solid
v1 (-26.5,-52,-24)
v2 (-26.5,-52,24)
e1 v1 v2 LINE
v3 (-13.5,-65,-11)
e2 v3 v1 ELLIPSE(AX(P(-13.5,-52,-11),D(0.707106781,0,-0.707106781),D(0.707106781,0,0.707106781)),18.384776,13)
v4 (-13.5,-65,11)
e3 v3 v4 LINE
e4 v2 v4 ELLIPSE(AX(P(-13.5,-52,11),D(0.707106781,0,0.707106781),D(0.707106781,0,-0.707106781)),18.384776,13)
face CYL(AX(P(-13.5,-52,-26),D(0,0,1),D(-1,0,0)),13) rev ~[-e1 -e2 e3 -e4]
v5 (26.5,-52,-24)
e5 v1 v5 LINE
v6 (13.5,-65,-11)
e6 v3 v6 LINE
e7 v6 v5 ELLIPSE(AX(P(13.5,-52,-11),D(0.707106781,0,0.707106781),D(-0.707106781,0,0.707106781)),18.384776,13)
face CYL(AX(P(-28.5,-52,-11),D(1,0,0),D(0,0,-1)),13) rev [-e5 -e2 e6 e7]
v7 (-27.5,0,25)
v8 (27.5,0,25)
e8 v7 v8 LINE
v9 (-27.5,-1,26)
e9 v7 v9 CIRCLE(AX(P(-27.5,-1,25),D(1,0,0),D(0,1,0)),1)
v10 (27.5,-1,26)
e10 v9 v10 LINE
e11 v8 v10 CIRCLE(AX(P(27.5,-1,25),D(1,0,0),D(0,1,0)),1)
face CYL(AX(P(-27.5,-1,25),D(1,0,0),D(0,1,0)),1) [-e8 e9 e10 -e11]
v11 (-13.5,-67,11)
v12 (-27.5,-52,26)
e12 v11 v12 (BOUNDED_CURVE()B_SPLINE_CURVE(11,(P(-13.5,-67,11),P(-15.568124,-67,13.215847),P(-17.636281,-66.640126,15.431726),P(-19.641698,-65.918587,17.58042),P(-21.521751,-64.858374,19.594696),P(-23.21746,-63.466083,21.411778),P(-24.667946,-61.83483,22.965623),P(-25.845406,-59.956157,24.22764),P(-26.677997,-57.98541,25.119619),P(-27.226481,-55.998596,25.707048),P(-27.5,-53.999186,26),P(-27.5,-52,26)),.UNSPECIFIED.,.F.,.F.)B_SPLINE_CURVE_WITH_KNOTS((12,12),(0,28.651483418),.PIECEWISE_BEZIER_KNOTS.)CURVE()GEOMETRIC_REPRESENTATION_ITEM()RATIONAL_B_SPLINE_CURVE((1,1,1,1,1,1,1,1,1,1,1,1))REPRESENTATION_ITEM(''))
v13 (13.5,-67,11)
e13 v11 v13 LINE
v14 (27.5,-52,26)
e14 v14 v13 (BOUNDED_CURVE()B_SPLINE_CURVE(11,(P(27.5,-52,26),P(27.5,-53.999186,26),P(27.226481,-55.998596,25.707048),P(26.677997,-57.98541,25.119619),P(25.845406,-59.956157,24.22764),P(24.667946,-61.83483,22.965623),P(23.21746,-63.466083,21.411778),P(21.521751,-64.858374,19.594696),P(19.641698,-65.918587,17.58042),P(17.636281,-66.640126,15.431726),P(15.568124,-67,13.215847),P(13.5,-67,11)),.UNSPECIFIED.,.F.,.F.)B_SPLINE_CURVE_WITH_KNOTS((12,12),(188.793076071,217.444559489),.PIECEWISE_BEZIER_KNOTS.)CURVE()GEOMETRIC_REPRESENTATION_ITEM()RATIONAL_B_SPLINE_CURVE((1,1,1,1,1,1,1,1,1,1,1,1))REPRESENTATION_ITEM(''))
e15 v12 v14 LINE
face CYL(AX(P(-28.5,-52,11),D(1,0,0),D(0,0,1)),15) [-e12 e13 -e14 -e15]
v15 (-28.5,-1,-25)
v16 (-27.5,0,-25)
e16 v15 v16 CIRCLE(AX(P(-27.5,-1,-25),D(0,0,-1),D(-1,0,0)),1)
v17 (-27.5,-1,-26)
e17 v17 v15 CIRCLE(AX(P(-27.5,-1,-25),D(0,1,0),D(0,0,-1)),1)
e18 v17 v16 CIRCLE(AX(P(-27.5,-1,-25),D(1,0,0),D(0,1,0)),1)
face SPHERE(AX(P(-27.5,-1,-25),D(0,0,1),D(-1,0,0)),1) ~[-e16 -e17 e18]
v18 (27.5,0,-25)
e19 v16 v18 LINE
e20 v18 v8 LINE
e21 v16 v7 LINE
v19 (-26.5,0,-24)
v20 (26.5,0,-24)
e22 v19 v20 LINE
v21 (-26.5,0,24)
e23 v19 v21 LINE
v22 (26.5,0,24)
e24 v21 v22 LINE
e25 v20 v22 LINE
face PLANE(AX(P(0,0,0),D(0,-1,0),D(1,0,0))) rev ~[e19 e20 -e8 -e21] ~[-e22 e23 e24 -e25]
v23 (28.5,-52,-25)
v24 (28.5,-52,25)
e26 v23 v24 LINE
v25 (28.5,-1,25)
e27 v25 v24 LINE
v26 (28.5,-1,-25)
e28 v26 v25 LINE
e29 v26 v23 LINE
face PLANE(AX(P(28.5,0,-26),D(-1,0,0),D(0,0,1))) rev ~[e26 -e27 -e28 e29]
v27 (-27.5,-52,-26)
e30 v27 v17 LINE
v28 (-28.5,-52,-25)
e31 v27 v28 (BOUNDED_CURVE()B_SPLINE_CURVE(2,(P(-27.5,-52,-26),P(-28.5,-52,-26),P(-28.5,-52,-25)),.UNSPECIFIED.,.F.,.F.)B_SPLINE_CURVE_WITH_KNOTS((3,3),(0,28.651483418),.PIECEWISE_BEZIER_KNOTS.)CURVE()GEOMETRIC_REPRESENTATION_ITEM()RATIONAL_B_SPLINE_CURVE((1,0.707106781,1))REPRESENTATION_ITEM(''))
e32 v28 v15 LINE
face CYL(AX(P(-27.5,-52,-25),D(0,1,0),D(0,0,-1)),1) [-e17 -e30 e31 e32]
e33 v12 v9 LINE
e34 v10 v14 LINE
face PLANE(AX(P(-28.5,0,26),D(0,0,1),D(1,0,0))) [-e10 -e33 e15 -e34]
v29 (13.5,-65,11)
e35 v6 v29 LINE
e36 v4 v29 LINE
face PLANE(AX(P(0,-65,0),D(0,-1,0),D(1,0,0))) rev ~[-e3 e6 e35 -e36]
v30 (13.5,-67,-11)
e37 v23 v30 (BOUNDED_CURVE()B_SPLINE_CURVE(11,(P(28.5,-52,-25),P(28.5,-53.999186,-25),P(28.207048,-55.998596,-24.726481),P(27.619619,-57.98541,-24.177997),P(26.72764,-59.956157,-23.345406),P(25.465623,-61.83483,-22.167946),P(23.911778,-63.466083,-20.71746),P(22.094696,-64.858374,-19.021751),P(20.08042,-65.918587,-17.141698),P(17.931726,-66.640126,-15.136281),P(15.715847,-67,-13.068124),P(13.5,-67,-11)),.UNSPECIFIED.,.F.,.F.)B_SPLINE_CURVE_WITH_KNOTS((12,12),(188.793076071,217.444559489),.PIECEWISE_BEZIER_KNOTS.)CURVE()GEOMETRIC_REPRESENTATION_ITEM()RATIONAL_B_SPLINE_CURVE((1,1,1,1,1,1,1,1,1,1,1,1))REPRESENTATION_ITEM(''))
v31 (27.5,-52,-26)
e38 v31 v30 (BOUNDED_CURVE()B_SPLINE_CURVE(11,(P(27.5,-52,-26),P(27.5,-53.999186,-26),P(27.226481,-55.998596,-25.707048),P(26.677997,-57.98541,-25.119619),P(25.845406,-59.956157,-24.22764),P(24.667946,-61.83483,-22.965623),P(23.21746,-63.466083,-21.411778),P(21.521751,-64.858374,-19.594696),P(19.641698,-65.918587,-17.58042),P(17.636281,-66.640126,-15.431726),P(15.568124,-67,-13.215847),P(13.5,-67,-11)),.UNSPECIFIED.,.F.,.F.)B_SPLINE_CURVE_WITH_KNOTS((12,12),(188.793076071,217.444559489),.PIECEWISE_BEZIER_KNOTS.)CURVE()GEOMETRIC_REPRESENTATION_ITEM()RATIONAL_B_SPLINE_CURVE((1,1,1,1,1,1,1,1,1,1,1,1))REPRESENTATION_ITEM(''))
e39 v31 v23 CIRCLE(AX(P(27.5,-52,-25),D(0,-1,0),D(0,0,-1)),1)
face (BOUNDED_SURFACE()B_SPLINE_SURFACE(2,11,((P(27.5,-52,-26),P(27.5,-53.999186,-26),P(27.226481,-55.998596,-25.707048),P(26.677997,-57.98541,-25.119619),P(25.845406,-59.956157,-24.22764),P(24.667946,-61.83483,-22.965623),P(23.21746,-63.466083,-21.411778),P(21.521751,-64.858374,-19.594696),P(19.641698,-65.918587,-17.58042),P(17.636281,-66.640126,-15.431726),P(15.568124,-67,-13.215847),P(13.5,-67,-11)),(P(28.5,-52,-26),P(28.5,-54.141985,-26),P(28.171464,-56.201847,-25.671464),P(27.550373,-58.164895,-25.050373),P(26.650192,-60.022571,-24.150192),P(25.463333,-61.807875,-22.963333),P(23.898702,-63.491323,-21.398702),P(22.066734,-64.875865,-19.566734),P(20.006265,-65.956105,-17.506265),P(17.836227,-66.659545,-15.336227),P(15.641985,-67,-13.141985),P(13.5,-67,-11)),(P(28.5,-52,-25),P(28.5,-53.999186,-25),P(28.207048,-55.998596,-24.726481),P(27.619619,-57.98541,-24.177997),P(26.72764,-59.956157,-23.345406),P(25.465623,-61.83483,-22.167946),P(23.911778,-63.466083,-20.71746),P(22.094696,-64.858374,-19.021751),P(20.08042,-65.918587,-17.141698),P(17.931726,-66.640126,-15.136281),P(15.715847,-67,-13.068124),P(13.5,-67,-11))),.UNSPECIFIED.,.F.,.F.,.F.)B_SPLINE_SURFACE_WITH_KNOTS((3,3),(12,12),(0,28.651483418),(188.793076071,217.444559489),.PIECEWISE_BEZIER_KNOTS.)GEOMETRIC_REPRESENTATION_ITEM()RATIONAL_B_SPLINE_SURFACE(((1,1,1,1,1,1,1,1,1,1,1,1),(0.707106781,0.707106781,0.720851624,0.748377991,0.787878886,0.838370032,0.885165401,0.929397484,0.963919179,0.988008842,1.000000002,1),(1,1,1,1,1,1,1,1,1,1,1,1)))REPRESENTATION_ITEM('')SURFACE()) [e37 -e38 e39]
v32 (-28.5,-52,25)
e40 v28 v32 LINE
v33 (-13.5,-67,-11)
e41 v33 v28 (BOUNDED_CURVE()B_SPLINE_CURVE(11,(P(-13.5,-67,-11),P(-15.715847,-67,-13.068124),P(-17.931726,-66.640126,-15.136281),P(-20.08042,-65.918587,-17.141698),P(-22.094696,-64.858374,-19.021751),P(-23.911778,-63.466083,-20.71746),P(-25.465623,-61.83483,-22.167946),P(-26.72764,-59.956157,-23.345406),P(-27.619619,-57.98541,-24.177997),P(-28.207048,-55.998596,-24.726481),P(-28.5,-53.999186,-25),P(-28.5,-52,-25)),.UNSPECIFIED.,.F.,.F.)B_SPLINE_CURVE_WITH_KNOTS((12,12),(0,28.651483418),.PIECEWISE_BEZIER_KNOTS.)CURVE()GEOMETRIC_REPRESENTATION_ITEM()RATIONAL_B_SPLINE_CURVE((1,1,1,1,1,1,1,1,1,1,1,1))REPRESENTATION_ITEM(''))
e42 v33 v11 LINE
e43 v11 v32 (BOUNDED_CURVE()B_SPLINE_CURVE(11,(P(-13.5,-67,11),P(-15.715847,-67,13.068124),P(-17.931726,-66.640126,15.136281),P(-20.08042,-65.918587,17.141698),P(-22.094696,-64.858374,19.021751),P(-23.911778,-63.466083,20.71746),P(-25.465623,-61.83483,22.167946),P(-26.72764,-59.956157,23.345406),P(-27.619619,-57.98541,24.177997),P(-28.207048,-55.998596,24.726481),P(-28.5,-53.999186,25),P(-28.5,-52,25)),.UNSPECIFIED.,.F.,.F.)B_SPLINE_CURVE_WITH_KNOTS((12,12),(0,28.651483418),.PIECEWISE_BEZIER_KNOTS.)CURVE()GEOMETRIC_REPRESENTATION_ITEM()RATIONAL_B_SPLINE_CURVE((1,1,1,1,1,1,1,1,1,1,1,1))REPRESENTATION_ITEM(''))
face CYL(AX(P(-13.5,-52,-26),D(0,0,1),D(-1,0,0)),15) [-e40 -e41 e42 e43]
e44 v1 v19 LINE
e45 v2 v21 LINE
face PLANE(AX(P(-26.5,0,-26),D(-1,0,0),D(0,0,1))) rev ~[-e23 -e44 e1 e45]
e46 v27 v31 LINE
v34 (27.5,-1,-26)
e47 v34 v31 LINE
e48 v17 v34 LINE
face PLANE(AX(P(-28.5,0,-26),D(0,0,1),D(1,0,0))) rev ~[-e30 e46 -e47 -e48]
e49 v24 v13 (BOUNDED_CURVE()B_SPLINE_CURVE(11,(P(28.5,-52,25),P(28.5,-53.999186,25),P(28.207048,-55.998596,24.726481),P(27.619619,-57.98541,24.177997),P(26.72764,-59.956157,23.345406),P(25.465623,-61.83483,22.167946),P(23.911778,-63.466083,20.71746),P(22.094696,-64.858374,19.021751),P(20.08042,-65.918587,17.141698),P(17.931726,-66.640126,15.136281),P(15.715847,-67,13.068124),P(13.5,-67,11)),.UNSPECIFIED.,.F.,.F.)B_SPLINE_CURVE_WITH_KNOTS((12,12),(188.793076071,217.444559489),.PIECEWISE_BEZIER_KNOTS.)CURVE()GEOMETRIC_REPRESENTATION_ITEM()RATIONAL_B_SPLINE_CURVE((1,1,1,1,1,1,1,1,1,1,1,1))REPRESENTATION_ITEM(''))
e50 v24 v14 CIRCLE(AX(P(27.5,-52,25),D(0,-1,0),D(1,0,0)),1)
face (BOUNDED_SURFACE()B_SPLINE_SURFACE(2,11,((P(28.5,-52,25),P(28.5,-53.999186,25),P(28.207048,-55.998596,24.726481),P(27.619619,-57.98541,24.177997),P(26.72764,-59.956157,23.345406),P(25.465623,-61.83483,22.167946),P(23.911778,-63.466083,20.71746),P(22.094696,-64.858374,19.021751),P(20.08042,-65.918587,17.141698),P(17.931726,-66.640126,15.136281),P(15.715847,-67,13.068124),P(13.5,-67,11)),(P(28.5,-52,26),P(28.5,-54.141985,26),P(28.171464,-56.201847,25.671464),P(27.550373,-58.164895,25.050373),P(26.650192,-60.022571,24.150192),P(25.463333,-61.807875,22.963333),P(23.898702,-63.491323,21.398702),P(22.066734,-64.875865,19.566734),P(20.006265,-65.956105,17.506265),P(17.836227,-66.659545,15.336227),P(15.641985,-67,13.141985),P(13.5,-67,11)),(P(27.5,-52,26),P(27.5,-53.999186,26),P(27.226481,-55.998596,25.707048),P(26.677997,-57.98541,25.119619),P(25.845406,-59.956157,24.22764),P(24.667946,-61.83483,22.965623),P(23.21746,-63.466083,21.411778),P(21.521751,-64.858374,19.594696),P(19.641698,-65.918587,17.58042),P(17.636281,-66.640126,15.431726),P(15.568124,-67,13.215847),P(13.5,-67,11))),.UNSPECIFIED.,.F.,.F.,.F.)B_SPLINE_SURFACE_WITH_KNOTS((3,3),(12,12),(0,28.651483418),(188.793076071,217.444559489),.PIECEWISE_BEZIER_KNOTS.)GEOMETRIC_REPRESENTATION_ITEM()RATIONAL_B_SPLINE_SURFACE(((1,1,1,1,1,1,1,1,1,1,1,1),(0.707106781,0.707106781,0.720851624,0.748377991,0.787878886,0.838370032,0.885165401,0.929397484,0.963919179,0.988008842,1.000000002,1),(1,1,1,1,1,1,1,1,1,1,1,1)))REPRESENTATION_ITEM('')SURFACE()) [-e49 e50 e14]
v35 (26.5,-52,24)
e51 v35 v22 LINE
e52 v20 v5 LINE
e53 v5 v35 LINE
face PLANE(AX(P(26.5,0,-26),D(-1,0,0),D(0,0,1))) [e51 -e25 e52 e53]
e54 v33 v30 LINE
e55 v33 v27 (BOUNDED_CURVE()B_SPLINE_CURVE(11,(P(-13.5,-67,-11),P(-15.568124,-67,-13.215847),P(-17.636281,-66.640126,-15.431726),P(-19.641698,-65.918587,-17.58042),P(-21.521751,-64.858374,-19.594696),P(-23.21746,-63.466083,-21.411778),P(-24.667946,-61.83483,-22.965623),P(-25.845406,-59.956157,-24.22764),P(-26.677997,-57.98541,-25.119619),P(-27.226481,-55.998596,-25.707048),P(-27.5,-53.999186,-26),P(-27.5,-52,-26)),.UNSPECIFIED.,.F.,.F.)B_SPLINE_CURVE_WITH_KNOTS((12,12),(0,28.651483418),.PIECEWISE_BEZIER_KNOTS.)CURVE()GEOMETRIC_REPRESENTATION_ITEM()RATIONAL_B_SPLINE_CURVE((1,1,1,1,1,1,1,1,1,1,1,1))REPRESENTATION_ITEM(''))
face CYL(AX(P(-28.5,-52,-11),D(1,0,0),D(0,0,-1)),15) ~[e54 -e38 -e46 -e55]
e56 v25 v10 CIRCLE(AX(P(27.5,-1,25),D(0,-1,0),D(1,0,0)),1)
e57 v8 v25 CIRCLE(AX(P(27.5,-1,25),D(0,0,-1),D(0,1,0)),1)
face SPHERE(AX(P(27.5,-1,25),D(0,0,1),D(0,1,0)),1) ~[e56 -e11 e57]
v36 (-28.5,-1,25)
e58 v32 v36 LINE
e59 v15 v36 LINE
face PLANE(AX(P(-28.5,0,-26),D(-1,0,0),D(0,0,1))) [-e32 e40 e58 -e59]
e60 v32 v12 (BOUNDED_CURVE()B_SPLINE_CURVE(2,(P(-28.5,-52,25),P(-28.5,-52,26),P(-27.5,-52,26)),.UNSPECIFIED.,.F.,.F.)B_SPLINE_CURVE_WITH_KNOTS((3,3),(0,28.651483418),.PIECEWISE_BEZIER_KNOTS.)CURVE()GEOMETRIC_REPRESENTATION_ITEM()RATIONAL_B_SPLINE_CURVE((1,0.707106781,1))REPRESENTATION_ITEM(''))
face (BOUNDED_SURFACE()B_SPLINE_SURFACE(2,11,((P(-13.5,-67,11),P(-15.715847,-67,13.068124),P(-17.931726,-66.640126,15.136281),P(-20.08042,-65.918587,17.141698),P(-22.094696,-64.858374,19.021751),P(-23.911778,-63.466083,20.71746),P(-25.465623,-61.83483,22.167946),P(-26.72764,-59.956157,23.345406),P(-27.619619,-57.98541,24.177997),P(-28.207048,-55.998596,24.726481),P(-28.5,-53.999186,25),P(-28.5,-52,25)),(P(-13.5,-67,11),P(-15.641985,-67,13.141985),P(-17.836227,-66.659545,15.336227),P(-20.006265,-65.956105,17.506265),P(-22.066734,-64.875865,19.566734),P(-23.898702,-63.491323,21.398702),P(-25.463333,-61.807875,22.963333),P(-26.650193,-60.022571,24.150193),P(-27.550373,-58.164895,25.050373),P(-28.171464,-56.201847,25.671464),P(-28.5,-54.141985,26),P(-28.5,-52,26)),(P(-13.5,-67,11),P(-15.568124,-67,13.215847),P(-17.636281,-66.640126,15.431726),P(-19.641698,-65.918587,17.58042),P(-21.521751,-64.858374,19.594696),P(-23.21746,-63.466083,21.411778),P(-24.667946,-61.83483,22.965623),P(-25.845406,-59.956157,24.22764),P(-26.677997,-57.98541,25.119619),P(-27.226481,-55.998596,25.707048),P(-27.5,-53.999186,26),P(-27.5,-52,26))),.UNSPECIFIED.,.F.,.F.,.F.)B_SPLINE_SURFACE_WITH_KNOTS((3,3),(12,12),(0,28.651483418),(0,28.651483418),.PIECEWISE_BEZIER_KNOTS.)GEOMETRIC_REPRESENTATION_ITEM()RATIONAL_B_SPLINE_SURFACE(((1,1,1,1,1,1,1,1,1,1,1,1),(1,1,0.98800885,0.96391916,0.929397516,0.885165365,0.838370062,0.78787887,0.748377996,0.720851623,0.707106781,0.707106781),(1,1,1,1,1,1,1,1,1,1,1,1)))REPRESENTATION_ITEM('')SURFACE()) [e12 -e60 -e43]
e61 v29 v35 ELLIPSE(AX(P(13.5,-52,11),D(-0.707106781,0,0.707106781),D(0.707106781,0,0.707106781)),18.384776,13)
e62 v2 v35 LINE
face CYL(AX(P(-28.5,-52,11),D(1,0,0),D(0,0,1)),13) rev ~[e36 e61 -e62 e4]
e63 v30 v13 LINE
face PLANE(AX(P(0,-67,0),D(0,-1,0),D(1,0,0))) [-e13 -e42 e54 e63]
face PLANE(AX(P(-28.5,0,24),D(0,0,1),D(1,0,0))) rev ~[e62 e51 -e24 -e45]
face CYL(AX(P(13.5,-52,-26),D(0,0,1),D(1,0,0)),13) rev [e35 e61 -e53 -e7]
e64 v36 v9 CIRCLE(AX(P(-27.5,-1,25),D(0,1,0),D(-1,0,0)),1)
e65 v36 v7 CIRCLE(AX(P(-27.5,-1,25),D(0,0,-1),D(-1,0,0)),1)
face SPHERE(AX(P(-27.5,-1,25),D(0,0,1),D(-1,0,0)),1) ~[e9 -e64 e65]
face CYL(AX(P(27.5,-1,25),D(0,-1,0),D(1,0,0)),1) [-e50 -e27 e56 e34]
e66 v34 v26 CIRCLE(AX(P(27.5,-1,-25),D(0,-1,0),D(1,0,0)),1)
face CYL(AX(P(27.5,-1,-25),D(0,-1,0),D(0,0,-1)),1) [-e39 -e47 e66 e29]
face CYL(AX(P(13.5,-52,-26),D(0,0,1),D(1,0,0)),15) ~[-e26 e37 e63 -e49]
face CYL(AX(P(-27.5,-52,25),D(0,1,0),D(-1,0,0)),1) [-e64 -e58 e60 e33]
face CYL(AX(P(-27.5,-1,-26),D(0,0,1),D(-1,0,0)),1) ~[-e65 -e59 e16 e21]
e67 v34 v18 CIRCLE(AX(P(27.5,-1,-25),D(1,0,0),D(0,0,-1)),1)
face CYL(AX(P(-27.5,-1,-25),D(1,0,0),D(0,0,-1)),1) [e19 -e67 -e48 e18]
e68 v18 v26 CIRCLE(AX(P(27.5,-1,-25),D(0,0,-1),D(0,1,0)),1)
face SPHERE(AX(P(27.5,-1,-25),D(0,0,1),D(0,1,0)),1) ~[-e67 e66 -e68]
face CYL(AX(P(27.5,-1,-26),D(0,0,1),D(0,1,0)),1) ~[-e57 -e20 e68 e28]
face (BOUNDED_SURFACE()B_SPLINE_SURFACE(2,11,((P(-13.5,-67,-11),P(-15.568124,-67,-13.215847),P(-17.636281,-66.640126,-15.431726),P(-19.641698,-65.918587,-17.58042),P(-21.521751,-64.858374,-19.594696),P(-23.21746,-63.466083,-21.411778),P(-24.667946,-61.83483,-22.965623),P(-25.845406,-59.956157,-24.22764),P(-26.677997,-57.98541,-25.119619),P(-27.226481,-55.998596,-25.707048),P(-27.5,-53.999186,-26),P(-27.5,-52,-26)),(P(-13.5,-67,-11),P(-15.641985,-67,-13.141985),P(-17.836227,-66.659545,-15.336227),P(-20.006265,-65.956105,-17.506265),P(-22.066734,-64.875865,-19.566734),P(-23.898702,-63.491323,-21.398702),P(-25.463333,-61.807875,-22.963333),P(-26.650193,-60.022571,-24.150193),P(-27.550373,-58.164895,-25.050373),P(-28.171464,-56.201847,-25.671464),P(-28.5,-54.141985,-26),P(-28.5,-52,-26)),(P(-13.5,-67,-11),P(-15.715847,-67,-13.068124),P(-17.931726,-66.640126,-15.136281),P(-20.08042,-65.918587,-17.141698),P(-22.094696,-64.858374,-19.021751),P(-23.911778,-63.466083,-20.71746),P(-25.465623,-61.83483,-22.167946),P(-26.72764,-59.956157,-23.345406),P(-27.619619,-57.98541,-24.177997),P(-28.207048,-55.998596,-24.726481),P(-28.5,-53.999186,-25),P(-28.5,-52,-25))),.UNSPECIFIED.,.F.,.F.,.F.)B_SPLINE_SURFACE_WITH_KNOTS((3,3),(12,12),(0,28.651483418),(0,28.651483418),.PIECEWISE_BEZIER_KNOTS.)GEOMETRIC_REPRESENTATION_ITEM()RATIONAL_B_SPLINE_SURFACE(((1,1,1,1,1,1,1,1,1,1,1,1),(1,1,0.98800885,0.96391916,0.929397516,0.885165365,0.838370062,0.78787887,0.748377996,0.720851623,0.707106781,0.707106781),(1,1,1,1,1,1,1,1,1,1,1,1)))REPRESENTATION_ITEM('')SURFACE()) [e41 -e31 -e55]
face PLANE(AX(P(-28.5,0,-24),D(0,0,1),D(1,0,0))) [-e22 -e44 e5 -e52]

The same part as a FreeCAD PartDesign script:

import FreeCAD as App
import Part
import Sketcher
from FreeCAD import Vector
Q = App.Units.Quantity


def edges_at(feature, points):
    """Names of the edges that pass closest to the given points."""
    edges = feature.Shape.Edges
    near = lambda p: min(range(len(edges)), key=lambda i: edges[i].distToShape(Part.Vertex(*p))[0])
    return sorted({f"Edge{near(p) + 1}" for p in points})


def faces_at(feature, points):
    """Names of the faces that lie closest to the given points."""
    faces = feature.Shape.Faces
    near = lambda p: min(range(len(faces)), key=lambda i: faces[i].distToShape(Part.Vertex(*p))[0])
    return sorted({f"Face{near(p) + 1}" for p in points})


def add_polygon(sketch, points):
    """Adds a closed chain of lines whose ends are joined by coincident constraints."""
    first, n = sketch.GeometryCount, len(points)
    for a, b in zip(points, points[1:] + points[:1]):
        sketch.addGeometry(Part.LineSegment(App.Vector(*a, 0), App.Vector(*b, 0)), False)
    for i in range(n):
        sketch.addConstraint(Sketcher.Constraint("Coincident", first + i, 2, first + (i + 1) % n, 1))

doc = App.newDocument("Part")
body = doc.addObject("PartDesign::Body", "Body")

# Sketch on XZ plane
sketch1 = doc.addObject("Sketcher::SketchObject", "Sketch")
body.addObject(sketch1)
sketch1.AttachmentSupport = (doc.XZ_Plane, [""])
sketch1.MapMode = "FlatFace"
add_polygon(sketch1, [(-28.5, 26), (-28.5, -26), (28.5, -26), (28.5, 26)])  # lines 0-3
sketch1.addConstraint([
    Sketcher.Constraint("Vertical", 0),
    Sketcher.Constraint("Horizontal", 1),
    Sketcher.Constraint("Vertical", 2),
    Sketcher.Constraint("Horizontal", 3),
    Sketcher.Constraint("Symmetric", 0, 2, 2, 2, -1, 1),
    Sketcher.Constraint("DistanceX", 1, 1, 1, 2, Q("57 mm")),
    Sketcher.Constraint("DistanceY", 0, 2, 0, 1, Q("52 mm")),
])
pad1 = doc.addObject("PartDesign::Pad", "Pad")
body.addObject(pad1)
pad1.Profile = sketch1
pad1.Length = 67
doc.recompute()

fillet = doc.addObject("PartDesign::Fillet", "Fillet")
body.addObject(fillet)
fillet.Base = (pad1, edges_at(pad1, [
    (0, -67, 26),
    (-28.5, -67, 0),
    (0, -67, -26),
    (28.5, -67, 0),
]))
fillet.Radius = 15
doc.recompute()

thickness = doc.addObject("PartDesign::Thickness", "Thickness")
body.addObject(thickness)
thickness.Base = (fillet, faces_at(fillet, [(0, 0, 0)]))
thickness.Value = 2
thickness.Reversed = True
thickness.Join = "Arc"
doc.recompute()

fillet2 = doc.addObject("PartDesign::Fillet", "Fillet001")
body.addObject(fillet2)
fillet2.Base = (thickness, edges_at(thickness, [(-28.5, 0, 0)]))
fillet2.Radius = 1
doc.recompute()

fillet3 = doc.addObject("PartDesign::Fillet", "Fillet002")
body.addObject(fillet3)
fillet3.Base = (fillet2, edges_at(fillet2, [(28.5, 0, 0)]))
fillet3.Radius = 1
doc.recompute()

fillet4 = doc.addObject("PartDesign::Fillet", "Fillet003")
body.addObject(fillet4)
fillet4.Base = (fillet3, edges_at(fillet3, [
    (28.5, -26.5, 26),
    (28.5, -26.5, -26),
    (-28.5, -26.5, 26),
    (-28.5, -26.5, -26),
]))
fillet4.Radius = 1

doc.recompute()
